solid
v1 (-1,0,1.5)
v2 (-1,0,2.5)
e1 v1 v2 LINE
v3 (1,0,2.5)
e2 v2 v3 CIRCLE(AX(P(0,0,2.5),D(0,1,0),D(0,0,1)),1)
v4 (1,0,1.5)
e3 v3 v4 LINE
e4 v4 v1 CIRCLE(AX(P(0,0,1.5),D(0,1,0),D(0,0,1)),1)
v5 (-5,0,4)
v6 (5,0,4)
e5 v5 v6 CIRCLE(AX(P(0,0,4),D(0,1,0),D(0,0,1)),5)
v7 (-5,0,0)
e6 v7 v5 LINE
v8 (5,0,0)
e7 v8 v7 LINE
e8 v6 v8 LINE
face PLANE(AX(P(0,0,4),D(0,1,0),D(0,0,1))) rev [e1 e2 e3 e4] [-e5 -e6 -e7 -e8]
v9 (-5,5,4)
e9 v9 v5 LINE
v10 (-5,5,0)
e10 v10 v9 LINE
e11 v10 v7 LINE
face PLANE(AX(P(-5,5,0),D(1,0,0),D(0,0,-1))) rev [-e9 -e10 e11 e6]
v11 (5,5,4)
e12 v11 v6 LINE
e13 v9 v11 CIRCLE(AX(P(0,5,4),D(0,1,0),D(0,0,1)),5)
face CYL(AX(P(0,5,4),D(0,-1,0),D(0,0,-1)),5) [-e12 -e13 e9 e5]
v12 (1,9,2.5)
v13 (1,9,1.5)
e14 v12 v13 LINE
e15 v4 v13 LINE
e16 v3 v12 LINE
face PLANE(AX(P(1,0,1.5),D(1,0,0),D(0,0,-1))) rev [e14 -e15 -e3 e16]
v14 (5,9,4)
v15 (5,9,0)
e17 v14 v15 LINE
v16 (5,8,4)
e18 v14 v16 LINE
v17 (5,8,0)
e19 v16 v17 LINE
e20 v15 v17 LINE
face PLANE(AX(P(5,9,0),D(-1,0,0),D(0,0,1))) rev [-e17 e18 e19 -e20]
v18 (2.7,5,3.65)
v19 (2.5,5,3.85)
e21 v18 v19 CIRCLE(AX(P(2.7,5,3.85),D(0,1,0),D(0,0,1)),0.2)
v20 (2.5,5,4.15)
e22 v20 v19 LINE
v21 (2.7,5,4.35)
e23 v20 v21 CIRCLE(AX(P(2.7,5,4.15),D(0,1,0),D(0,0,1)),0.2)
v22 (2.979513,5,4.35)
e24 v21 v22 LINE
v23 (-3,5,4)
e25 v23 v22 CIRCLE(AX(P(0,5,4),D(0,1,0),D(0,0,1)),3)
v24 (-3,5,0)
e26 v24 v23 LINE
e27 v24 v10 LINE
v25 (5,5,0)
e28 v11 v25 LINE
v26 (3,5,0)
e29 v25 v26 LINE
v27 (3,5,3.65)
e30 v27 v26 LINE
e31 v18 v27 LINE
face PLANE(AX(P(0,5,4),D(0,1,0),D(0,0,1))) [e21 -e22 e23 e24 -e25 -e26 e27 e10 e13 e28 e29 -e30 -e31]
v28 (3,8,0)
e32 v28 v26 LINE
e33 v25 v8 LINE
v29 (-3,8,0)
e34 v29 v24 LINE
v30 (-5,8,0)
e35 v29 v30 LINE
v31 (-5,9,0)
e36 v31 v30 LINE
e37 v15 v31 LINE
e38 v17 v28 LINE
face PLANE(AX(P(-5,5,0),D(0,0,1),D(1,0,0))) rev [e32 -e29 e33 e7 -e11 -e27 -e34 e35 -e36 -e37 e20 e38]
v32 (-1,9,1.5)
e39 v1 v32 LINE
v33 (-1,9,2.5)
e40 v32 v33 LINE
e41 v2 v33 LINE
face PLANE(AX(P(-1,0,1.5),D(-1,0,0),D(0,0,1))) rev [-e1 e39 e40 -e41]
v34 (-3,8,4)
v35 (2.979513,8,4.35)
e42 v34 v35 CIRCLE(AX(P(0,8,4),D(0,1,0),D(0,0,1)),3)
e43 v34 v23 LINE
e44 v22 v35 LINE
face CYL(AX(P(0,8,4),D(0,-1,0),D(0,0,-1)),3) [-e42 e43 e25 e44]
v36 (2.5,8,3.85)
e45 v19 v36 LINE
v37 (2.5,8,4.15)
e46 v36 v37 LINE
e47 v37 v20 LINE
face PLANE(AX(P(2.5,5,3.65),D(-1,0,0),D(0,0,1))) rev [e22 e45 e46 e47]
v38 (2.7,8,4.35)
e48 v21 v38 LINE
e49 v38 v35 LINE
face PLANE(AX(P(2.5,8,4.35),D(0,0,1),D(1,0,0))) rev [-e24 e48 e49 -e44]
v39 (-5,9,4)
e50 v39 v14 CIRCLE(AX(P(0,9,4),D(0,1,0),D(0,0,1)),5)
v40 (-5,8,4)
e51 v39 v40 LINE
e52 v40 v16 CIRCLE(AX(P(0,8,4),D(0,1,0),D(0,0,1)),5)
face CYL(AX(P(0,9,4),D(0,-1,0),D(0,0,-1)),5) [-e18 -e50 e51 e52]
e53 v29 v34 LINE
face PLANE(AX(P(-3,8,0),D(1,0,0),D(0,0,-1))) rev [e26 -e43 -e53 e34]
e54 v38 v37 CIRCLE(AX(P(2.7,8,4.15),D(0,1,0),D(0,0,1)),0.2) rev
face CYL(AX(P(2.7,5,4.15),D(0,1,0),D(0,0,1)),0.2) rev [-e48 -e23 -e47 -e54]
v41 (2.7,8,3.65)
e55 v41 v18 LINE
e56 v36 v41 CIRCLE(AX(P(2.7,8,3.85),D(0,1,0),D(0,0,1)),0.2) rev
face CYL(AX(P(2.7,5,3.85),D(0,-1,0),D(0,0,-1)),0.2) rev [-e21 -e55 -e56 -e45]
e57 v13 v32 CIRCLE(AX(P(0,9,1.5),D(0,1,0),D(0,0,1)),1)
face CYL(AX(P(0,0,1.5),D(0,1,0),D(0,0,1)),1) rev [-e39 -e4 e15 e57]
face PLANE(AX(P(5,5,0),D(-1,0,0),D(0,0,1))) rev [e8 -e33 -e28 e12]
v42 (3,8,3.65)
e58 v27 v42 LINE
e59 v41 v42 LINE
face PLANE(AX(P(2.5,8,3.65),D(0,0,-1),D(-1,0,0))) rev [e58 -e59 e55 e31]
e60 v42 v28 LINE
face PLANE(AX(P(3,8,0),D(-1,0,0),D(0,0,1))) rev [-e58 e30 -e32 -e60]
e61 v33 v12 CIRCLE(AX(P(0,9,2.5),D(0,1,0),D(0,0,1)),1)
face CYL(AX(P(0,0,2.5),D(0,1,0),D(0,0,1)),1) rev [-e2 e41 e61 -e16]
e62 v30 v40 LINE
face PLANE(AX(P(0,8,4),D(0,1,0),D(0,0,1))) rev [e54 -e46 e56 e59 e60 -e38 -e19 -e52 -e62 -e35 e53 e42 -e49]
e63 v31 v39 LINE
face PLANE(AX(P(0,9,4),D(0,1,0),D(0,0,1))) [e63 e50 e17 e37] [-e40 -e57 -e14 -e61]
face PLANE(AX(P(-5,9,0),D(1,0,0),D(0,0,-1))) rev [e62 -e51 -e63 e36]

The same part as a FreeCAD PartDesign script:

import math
import FreeCAD as App
import Part
import Sketcher


def edges_at(feature, points):
    """Names of the edges that pass closest to the given points."""
    edges = feature.Shape.Edges
    near = lambda p: min(range(len(edges)), key=lambda i: edges[i].distToShape(Part.Vertex(*p))[0])
    return sorted({f"Edge{near(p) + 1}" for p in points})


def add_polygon(sketch, points):
    """Adds a closed chain of lines whose ends are joined by coincident constraints."""
    first, n = sketch.GeometryCount, len(points)
    for a, b in zip(points, points[1:] + points[:1]):
        sketch.addGeometry(Part.LineSegment(App.Vector(*a, 0), App.Vector(*b, 0)), False)
    for i in range(n):
        sketch.addConstraint(Sketcher.Constraint("Coincident", first + i, 2, first + (i + 1) % n, 1))

doc = App.newDocument("Part")
params = doc.addObject("Spreadsheet::Sheet", "Params")
for row, (alias, value) in enumerate([
    ("sketch1_radius", "5 mm"),
    ("sketch1_height", "4 mm"),
    ("pad1_length", "5 mm"),
    ("sketch2_radius", "3 mm"),
    ("sketch2_height", "4 mm"),
    ("pad2_length", "3 mm"),
    ("sketch3_radius", "5 mm"),
    ("sketch3_height", "4 mm"),
    ("pad3_length", "1 mm"),
    ("sketch4_radius", "1 mm"),
    ("sketch4_height", "1 mm"),
    ("sketch5_width", "3 mm"),
    ("sketch5_height", "0.7 mm"),
    ("pocket2_length", "0.5 mm"),
    ("fillet_radius", "0.2 mm"),
], start=1):
    params.set(f"A{row}", alias)
    params.set(f"B{row}", "=" + value)
    params.setAlias(f"B{row}", alias)

body = doc.addObject("PartDesign::Body", "Body")

sketch1 = doc.addObject("Sketcher::SketchObject", "Sketch")
body.addObject(sketch1)
sketch1.AttachmentSupport = (doc.XZ_Plane, [""])
sketch1.MapMode = "FlatFace"
sketch1.addGeometry(Part.LineSegment(App.Vector(5, 0, 0), App.Vector(-5, 0, 0)), False)
sketch1.addGeometry(Part.LineSegment(App.Vector(-5, 0, 0), App.Vector(-5, 4, 0)), False)
sketch1.addGeometry(Part.ArcOfCircle(Part.Circle(App.Vector(0, 4, 0), App.Vector(0, 0, 1), 5), math.radians(0), math.radians(180)), False)
sketch1.addGeometry(Part.LineSegment(App.Vector(5, 4, 0), App.Vector(5, 0, 0)), False)
sketch1.addConstraint(Sketcher.Constraint("Coincident", 0, 2, 1, 1))
sketch1.addConstraint(Sketcher.Constraint("Tangent", 1, 2, 2, 2))
sketch1.addConstraint(Sketcher.Constraint("Tangent", 2, 1, 3, 1))
sketch1.addConstraint(Sketcher.Constraint("Coincident", 3, 2, 0, 1))
sketch1.addConstraint(Sketcher.Constraint("Horizontal", 0))
sketch1.addConstraint(Sketcher.Constraint("Vertical", 1))
sketch1.addConstraint(Sketcher.Constraint("Vertical", 3))
sketch1.addConstraint(Sketcher.Constraint("Symmetric", 0, 2, 3, 2, -1, 1))
sketch1.addConstraint(Sketcher.Constraint("Radius", 2, 5.0))
sketch1.addConstraint(Sketcher.Constraint("DistanceY", 1, 1, 1, 2, 4.0))
sketch1.setExpression("Constraints[8]", "Params.sketch1_radius")
sketch1.setExpression("Constraints[9]", "Params.sketch1_height")
pad1 = doc.addObject("PartDesign::Pad", "Pad")
body.addObject(pad1)
pad1.Profile = sketch1
pad1.setExpression("Length", "Params.pad1_length")
pad1.Reversed = True

sketch2 = doc.addObject("Sketcher::SketchObject", "Sketch001")
body.addObject(sketch2)
sketch2.AttachmentSupport = (doc.XZ_Plane, [""])
sketch2.MapMode = "FlatFace"
sketch2.AttachmentOffset = App.Placement(App.Vector(0, 0, -5), App.Rotation())
sketch2.addGeometry(Part.LineSegment(App.Vector(3, 0, 0), App.Vector(-3, 0, 0)), False)
sketch2.addGeometry(Part.LineSegment(App.Vector(-3, 0, 0), App.Vector(-3, 4, 0)), False)
sketch2.addGeometry(Part.ArcOfCircle(Part.Circle(App.Vector(0, 4, 0), App.Vector(0, 0, 1), 3), math.radians(0), math.radians(180)), False)
sketch2.addGeometry(Part.LineSegment(App.Vector(3, 4, 0), App.Vector(3, 0, 0)), False)
sketch2.addConstraint(Sketcher.Constraint("Coincident", 0, 2, 1, 1))
sketch2.addConstraint(Sketcher.Constraint("Tangent", 1, 2, 2, 2))
sketch2.addConstraint(Sketcher.Constraint("Tangent", 2, 1, 3, 1))
sketch2.addConstraint(Sketcher.Constraint("Coincident", 3, 2, 0, 1))
sketch2.addConstraint(Sketcher.Constraint("Horizontal", 0))
sketch2.addConstraint(Sketcher.Constraint("Vertical", 1))
sketch2.addConstraint(Sketcher.Constraint("Vertical", 3))
sketch2.addConstraint(Sketcher.Constraint("Symmetric", 0, 2, 3, 2, -1, 1))
sketch2.addConstraint(Sketcher.Constraint("Radius", 2, 3.0))
sketch2.addConstraint(Sketcher.Constraint("DistanceY", 1, 1, 1, 2, 4.0))
sketch2.setExpression("Constraints[8]", "Params.sketch2_radius")
sketch2.setExpression("Constraints[9]", "Params.sketch2_height")
pad2 = doc.addObject("PartDesign::Pad", "Pad001")
body.addObject(pad2)
pad2.Profile = sketch2
pad2.setExpression("Length", "Params.pad2_length")
pad2.Reversed = True

sketch3 = doc.addObject("Sketcher::SketchObject", "Sketch002")
body.addObject(sketch3)
sketch3.AttachmentSupport = (doc.XZ_Plane, [""])
sketch3.MapMode = "FlatFace"
sketch3.AttachmentOffset = App.Placement(App.Vector(0, 0, -8), App.Rotation())
sketch3.addGeometry(Part.LineSegment(App.Vector(5, 0, 0), App.Vector(-5, 0, 0)), False)
sketch3.addGeometry(Part.LineSegment(App.Vector(-5, 0, 0), App.Vector(-5, 4, 0)), False)
sketch3.addGeometry(Part.ArcOfCircle(Part.Circle(App.Vector(0, 4, 0), App.Vector(0, 0, 1), 5), math.radians(0), math.radians(180)), False)
sketch3.addGeometry(Part.LineSegment(App.Vector(5, 4, 0), App.Vector(5, 0, 0)), False)
sketch3.addConstraint(Sketcher.Constraint("Coincident", 0, 2, 1, 1))
sketch3.addConstraint(Sketcher.Constraint("Tangent", 1, 2, 2, 2))
sketch3.addConstraint(Sketcher.Constraint("Tangent", 2, 1, 3, 1))
sketch3.addConstraint(Sketcher.Constraint("Coincident", 3, 2, 0, 1))
sketch3.addConstraint(Sketcher.Constraint("Horizontal", 0))
sketch3.addConstraint(Sketcher.Constraint("Vertical", 1))
sketch3.addConstraint(Sketcher.Constraint("Vertical", 3))
sketch3.addConstraint(Sketcher.Constraint("Symmetric", 0, 2, 3, 2, -1, 1))
sketch3.addConstraint(Sketcher.Constraint("Radius", 2, 5.0))
sketch3.addConstraint(Sketcher.Constraint("DistanceY", 1, 1, 1, 2, 4.0))
sketch3.setExpression("Constraints[8]", "Params.sketch3_radius")
sketch3.setExpression("Constraints[9]", "Params.sketch3_height")
pad3 = doc.addObject("PartDesign::Pad", "Pad002")
body.addObject(pad3)
pad3.Profile = sketch3
pad3.setExpression("Length", "Params.pad3_length")
pad3.Reversed = True

sketch4 = doc.addObject("Sketcher::SketchObject", "Sketch003")
body.addObject(sketch4)
sketch4.AttachmentSupport = (doc.XZ_Plane, [""])
sketch4.MapMode = "FlatFace"
sketch4.AttachmentOffset = App.Placement(App.Vector(0, 0, -9), App.Rotation())
sketch4.addGeometry(Part.LineSegment(App.Vector(1, 2.5, 0), App.Vector(1, 1.5, 0)), False)
sketch4.addGeometry(Part.ArcOfCircle(Part.Circle(App.Vector(0, 1.5, 0), App.Vector(0, 0, 1), 1), math.radians(180), math.radians(360)), False)
sketch4.addGeometry(Part.LineSegment(App.Vector(-1, 1.5, 0), App.Vector(-1, 2.5, 0)), False)
sketch4.addGeometry(Part.ArcOfCircle(Part.Circle(App.Vector(0, 2.5, 0), App.Vector(0, 0, 1), 1), math.radians(0), math.radians(180)), False)
sketch4.addConstraint(Sketcher.Constraint("Tangent", 0, 2, 1, 2))
sketch4.addConstraint(Sketcher.Constraint("Tangent", 1, 1, 2, 1))
sketch4.addConstraint(Sketcher.Constraint("Tangent", 2, 2, 3, 2))
sketch4.addConstraint(Sketcher.Constraint("Tangent", 3, 1, 0, 1))
sketch4.addConstraint(Sketcher.Constraint("Vertical", 0))
sketch4.addConstraint(Sketcher.Constraint("Vertical", 2))
sketch4.addConstraint(Sketcher.Constraint("PointOnObject", 1, 3, -2))
sketch4.addConstraint(Sketcher.Constraint("Radius", 1, 1.0))
sketch4.addConstraint(Sketcher.Constraint("DistanceY", 0, 2, 0, 1, 1.0))
sketch4.addConstraint(Sketcher.Constraint("DistanceY", -1, 1, 1, 3, 1.5))
sketch4.setExpression("Constraints[7]", "Params.sketch4_radius")
sketch4.setExpression("Constraints[8]", "Params.sketch4_height")
pocket1 = doc.addObject("PartDesign::Pocket", "Pocket")
body.addObject(pocket1)
pocket1.Profile = sketch4
pocket1.Type = "ThroughAll"
pocket1.Reversed = True

sketch5 = doc.addObject("Sketcher::SketchObject", "Sketch004")
body.addObject(sketch5)
sketch5.AttachmentSupport = (doc.YZ_Plane, [""])
sketch5.MapMode = "FlatFace"
sketch5.AttachmentOffset = App.Placement(App.Vector(0, 0, 3), App.Rotation())
add_polygon(sketch5, [(8, 4.3), (5, 4.3), (5, 3.6), (8, 3.6)])
sketch5.addConstraint(Sketcher.Constraint("Horizontal", 0))
sketch5.addConstraint(Sketcher.Constraint("Vertical", 1))
sketch5.addConstraint(Sketcher.Constraint("Horizontal", 2))
sketch5.addConstraint(Sketcher.Constraint("Vertical", 3))
sketch5.addConstraint(Sketcher.Constraint("DistanceX", 0, 2, 0, 1, 3.0))
sketch5.addConstraint(Sketcher.Constraint("DistanceY", 1, 2, 1, 1, 0.7))
sketch5.addConstraint(Sketcher.Constraint("DistanceX", -1, 1, 0, 2, 5.0))
sketch5.addConstraint(Sketcher.Constraint("DistanceY", -1, 1, 0, 2, 4.35))
sketch5.setExpression("Constraints[8]", "Params.sketch5_width")
sketch5.setExpression("Constraints[9]", "Params.sketch5_height")
pocket2 = doc.addObject("PartDesign::Pocket", "Pocket001")
body.addObject(pocket2)
pocket2.Profile = sketch5
pocket2.setExpression("Length", "Params.pocket2_length")
doc.recompute()

fillet = doc.addObject("PartDesign::Fillet", "Fillet")
body.addObject(fillet)
fillet.Base = (pocket2, edges_at(pocket2, [(2.5, 6.5, 4.35), (2.5, 6.5, 3.65)]))
fillet.setExpression("Radius", "Params.fillet_radius")

doc.recompute()
